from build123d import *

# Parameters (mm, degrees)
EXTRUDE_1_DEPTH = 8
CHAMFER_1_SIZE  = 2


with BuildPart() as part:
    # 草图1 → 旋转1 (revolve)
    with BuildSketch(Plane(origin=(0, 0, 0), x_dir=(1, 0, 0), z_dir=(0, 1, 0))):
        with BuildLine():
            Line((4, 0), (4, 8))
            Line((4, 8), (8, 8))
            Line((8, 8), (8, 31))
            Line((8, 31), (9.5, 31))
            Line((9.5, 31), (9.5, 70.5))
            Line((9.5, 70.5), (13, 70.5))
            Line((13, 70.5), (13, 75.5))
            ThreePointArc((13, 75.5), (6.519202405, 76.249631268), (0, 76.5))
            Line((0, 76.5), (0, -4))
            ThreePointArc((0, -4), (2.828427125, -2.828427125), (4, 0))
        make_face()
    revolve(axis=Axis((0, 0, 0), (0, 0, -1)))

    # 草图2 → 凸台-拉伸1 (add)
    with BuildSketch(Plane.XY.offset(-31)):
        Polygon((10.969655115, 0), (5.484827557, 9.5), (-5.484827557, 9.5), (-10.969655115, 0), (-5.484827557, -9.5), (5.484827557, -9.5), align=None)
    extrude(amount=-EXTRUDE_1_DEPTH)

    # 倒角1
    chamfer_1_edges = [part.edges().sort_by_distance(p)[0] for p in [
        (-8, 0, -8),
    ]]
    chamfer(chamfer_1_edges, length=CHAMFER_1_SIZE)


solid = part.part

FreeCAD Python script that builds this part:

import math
import FreeCAD as App
import Part
import Sketcher
from FreeCAD import Vector
Q = App.Units.Quantity


def edges_at(feature, points):
    """Names of the edges that pass closest to the given points."""
    edges = feature.Shape.Edges
    near = lambda p: min(range(len(edges)), key=lambda i: edges[i].distToShape(Part.Vertex(*p))[0])
    return sorted({f"Edge{near(p) + 1}" for p in points})

doc = App.newDocument("Part")
body = doc.addObject("PartDesign::Body", "Body")

sketch1 = body.newObject("Sketcher::SketchObject", "Sketch")
sketch1.AttachmentSupport = (doc.getObject("XZ_Plane"), [""])
sketch1.MapMode = "FlatFace"
sketch1.addGeometry(Part.LineSegment(Vector(4, 0, 0), Vector(4, -8, 0)), False)
sketch1.addGeometry(Part.LineSegment(Vector(4, -8, 0), Vector(8, -8, 0)), False)
sketch1.addGeometry(Part.LineSegment(Vector(8, -8, 0), Vector(8, -31, 0)), False)
sketch1.addGeometry(Part.LineSegment(Vector(8, -31, 0), Vector(9.5, -31, 0)), False)
sketch1.addGeometry(Part.LineSegment(Vector(9.5, -31, 0), Vector(9.5, -70.5, 0)), False)
sketch1.addGeometry(Part.LineSegment(Vector(9.5, -70.5, 0), Vector(13, -70.5, 0)), False)
sketch1.addGeometry(Part.LineSegment(Vector(13, -70.5, 0), Vector(13, -75.5, 0)), False)
sketch1.addGeometry(Part.ArcOfCircle(Part.Circle(Vector(0, 8.5, 0), Vector(0, 0, 1), 85), math.radians(-90), math.radians(-81.2)), False)
sketch1.addGeometry(Part.LineSegment(Vector(0, -76.5, 0), Vector(0, 4, 0)), False)
sketch1.addGeometry(Part.ArcOfCircle(Part.Circle(Vector(0, 0, 0), Vector(0, 0, 1), 4), math.radians(0), math.radians(90)), False)
sketch1.addConstraint(Sketcher.Constraint("Coincident", 0, 2, 1, 1))
sketch1.addConstraint(Sketcher.Constraint("Coincident", 1, 2, 2, 1))
sketch1.addConstraint(Sketcher.Constraint("Coincident", 2, 2, 3, 1))
sketch1.addConstraint(Sketcher.Constraint("Coincident", 3, 2, 4, 1))
sketch1.addConstraint(Sketcher.Constraint("Coincident", 4, 2, 5, 1))
sketch1.addConstraint(Sketcher.Constraint("Coincident", 5, 2, 6, 1))
sketch1.addConstraint(Sketcher.Constraint("Coincident", 6, 2, 7, 2))
sketch1.addConstraint(Sketcher.Constraint("Coincident", 7, 1, 8, 1))
sketch1.addConstraint(Sketcher.Constraint("Coincident", 8, 2, 9, 2))
sketch1.addConstraint(Sketcher.Constraint("Tangent", 9, 1, 0, 1))
sketch1.addConstraint(Sketcher.Constraint("Vertical", 0))
sketch1.addConstraint(Sketcher.Constraint("Horizontal", 1))
sketch1.addConstraint(Sketcher.Constraint("Vertical", 2))
sketch1.addConstraint(Sketcher.Constraint("Horizontal", 3))
sketch1.addConstraint(Sketcher.Constraint("Vertical", 4))
sketch1.addConstraint(Sketcher.Constraint("Horizontal", 5))
sketch1.addConstraint(Sketcher.Constraint("Vertical", 6))
sketch1.addConstraint(Sketcher.Constraint("Vertical", 8))
sketch1.addConstraint(Sketcher.Constraint("Coincident", 9, 3, -1, 1))
sketch1.addConstraint(Sketcher.Constraint("PointOnObject", 7, 3, -2))
sketch1.addConstraint(Sketcher.Constraint("PointOnObject", 7, 1, -2))
sketch1.addConstraint(Sketcher.Constraint("Radius", 7, Q("85 mm")))
sketch1.addConstraint(Sketcher.Constraint("Radius", 9, Q("4 mm")))
sketch1.addConstraint(Sketcher.Constraint("DistanceX", 1, 1, 1, 2, Q("4 mm")))
sketch1.addConstraint(Sketcher.Constraint("DistanceY", 0, 2, 0, 1, Q("8 mm")))
sketch1.addConstraint(Sketcher.Constraint("DistanceY", 2, 2, 2, 1, Q("23 mm")))
sketch1.addConstraint(Sketcher.Constraint("DistanceY", 6, 2, 6, 1, Q("5 mm")))
sketch1.addConstraint(Sketcher.Constraint("DistanceX", 3, 1, 3, 2, Q("1.5 mm")))
sketch1.addConstraint(Sketcher.Constraint("DistanceX", 5, 1, 5, 2, Q("3.5 mm")))
sketch1.addConstraint(Sketcher.Constraint("DistanceY", 4, 2, 4, 1, Q("39.5 mm")))
revolution = body.newObject("PartDesign::Revolution", "Revolution")
revolution.Profile = sketch1
revolution.ReferenceAxis = (sketch1, ["V_Axis"])
revolution.Angle = 360

sketch2 = body.newObject("Sketcher::SketchObject", "Sketch001")
sketch2.AttachmentSupport = (doc.getObject("XY_Plane"), [""])
sketch2.MapMode = "FlatFace"
sketch2.AttachmentOffset = App.Placement(Vector(0, 0, -31), App.Rotation())
sketch2.addGeometry(Part.LineSegment(Vector(11, 0, 0), Vector(5, 10, 0)), False)
sketch2.addGeometry(Part.LineSegment(Vector(5, 10, 0), Vector(-5, 10, 0)), False)
sketch2.addGeometry(Part.LineSegment(Vector(-5, 10, 0), Vector(-11, 0, 0)), False)
sketch2.addGeometry(Part.LineSegment(Vector(-11, 0, 0), Vector(-5, -10, 0)), False)
sketch2.addGeometry(Part.LineSegment(Vector(-5, -10, 0), Vector(5, -10, 0)), False)
sketch2.addGeometry(Part.LineSegment(Vector(5, -10, 0), Vector(11, 0, 0)), False)
sketch2.addConstraint(Sketcher.Constraint("Coincident", 0, 2, 1, 1))
sketch2.addConstraint(Sketcher.Constraint("Coincident", 1, 2, 2, 1))
sketch2.addConstraint(Sketcher.Constraint("Coincident", 2, 2, 3, 1))
sketch2.addConstraint(Sketcher.Constraint("Coincident", 3, 2, 4, 1))
sketch2.addConstraint(Sketcher.Constraint("Coincident", 4, 2, 5, 1))
sketch2.addConstraint(Sketcher.Constraint("Coincident", 5, 2, 0, 1))
sketch2.addConstraint(Sketcher.Constraint("Horizontal", 1))
sketch2.addConstraint(Sketcher.Constraint("Horizontal", 4))
sketch2.addConstraint(Sketcher.Constraint("Symmetric", 0, 2, 3, 2, -1, 1))
sketch2.addConstraint(Sketcher.Constraint("Symmetric", 2, 2, 5, 2, -1, 1))
sketch2.addConstraint(Sketcher.Constraint("PointOnObject", 2, 2, -1))
sketch2.addConstraint(Sketcher.Constraint("Parallel", 2, 5))
sketch2.addConstraint(Sketcher.Constraint("Vertical", 1, 2, 3, 2))
sketch2.addConstraint(Sketcher.Constraint("Angle", 0, Q("120 deg")))
sketch2.addConstraint(Sketcher.Constraint("DistanceY", 3, 2, 1, 2, Q("19 mm")))
sketch2.addConstraint(Sketcher.Constraint("DistanceX", 1, 2, 1, 1, Q("10.969655 mm")))
pad1 = body.newObject("PartDesign::Pad", "Pad")
pad1.Profile = sketch2
pad1.Length = 8
pad1.Reversed = True
doc.recompute()

chamfer = body.newObject("PartDesign::Chamfer", "Chamfer")
chamfer.Base = (pad1, edges_at(pad1, [(-8, 0, -8)]))
chamfer.Size = 2

doc.recompute()
